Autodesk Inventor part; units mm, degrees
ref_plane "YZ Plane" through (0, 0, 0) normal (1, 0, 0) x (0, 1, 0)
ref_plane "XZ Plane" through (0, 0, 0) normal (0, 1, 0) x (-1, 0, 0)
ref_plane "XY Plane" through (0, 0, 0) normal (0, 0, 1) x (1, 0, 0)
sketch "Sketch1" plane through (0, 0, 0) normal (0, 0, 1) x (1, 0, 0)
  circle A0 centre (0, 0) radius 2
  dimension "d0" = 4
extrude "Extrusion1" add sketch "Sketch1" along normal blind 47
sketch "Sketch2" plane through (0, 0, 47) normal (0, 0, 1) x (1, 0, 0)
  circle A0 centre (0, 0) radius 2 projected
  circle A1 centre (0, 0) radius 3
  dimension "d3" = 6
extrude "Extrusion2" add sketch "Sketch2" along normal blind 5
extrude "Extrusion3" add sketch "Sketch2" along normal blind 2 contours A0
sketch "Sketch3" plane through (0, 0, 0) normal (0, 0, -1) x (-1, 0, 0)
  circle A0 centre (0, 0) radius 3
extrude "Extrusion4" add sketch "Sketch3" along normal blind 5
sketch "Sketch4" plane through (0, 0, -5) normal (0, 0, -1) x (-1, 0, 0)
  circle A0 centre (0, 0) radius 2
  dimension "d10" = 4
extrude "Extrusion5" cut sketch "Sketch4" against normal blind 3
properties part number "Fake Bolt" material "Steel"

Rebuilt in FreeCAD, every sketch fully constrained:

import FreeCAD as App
import Part
import Sketcher
from FreeCAD import Vector
Q = App.Units.Quantity

doc = App.newDocument("Part")
params = doc.addObject("Spreadsheet::Sheet", "Params")
for row, (alias, value) in enumerate([
    ("sketch1_diameter", "4 mm"),
    ("pad1_length", "47 mm"),
    ("sketch2_diameter", "6 mm"),
    ("sketch2_diameter2", "4 mm"),
    ("pad2_length", "5 mm"),
    ("sketch3_diameter", "4 mm"),
    ("pad3_length", "2 mm"),
    ("sketch4_diameter", "6 mm"),
    ("pad4_length", "5 mm"),
    ("sketch5_diameter", "4 mm"),
    ("pocket1_length", "3 mm"),
], start=1):
    params.set(f"A{row}", alias)
    params.set(f"B{row}", "=" + value)
    params.setAlias(f"B{row}", alias)

body = doc.addObject("PartDesign::Body", "Body")
body.AllowCompound = True

sketch1 = doc.addObject("Sketcher::SketchObject", "Sketch")
body.addObject(sketch1)
sketch1.AttachmentSupport = (doc.XY_Plane, [""])
sketch1.MapMode = "FlatFace"
sketch1.addGeometry(Part.Circle(Vector(0, 0, 0), Vector(0, 0, 1), 2), False)
sketch1.addConstraint([
    Sketcher.Constraint("Coincident", 0, 3, -1, 1),
    Sketcher.Constraint("Diameter", 0, Q("4 mm")),
])
sketch1.setExpression("Constraints[1]", "Params.sketch1_diameter")
pad1 = doc.addObject("PartDesign::Pad", "Pad")
body.addObject(pad1)
pad1.Profile = sketch1
pad1.setExpression("Length", "Params.pad1_length")

sketch2 = doc.addObject("Sketcher::SketchObject", "Sketch001")
body.addObject(sketch2)
sketch2.AttachmentSupport = (doc.XY_Plane, [""])
sketch2.MapMode = "FlatFace"
sketch2.AttachmentOffset = App.Placement(Vector(0, 0, 47), App.Rotation())
sketch2.addGeometry([
    Part.Circle(Vector(0, 0, 0), Vector(0, 0, 1), 3),
    Part.Circle(Vector(0, 0, 0), Vector(0, 0, 1), 2),
], False)
sketch2.addConstraint([
    Sketcher.Constraint("Coincident", 0, 3, -1, 1),
    Sketcher.Constraint("Coincident", 1, 3, -1, 1),
    Sketcher.Constraint("Diameter", 0, Q("6 mm")),
    Sketcher.Constraint("Diameter", 1, Q("4 mm")),
])
sketch2.setExpression("Constraints[2]", "Params.sketch2_diameter")
sketch2.setExpression("Constraints[3]", "Params.sketch2_diameter2")
pad2 = doc.addObject("PartDesign::Pad", "Pad001")
body.addObject(pad2)
pad2.Profile = sketch2
pad2.setExpression("Length", "Params.pad2_length")

sketch3 = doc.addObject("Sketcher::SketchObject", "Sketch002")
body.addObject(sketch3)
sketch3.AttachmentSupport = (doc.XY_Plane, [""])
sketch3.MapMode = "FlatFace"
sketch3.AttachmentOffset = App.Placement(Vector(0, 0, 47), App.Rotation())
sketch3.addGeometry(Part.Circle(Vector(0, 0, 0), Vector(0, 0, 1), 2), False)
sketch3.addConstraint([
    Sketcher.Constraint("Coincident", 0, 3, -1, 1),
    Sketcher.Constraint("Diameter", 0, Q("4 mm")),
])
sketch3.setExpression("Constraints[1]", "Params.sketch3_diameter")
pad3 = doc.addObject("PartDesign::Pad", "Pad002")
body.addObject(pad3)
pad3.Profile = sketch3
pad3.setExpression("Length", "Params.pad3_length")

sketch4 = doc.addObject("Sketcher::SketchObject", "Sketch003")
body.addObject(sketch4)
sketch4.AttachmentSupport = (doc.XY_Plane, [""])
sketch4.MapMode = "FlatFace"
sketch4.addGeometry(Part.Circle(Vector(0, 0, 0), Vector(0, 0, 1), 3), False)
sketch4.addConstraint([
    Sketcher.Constraint("Coincident", 0, 3, -1, 1),
    Sketcher.Constraint("Diameter", 0, Q("6 mm")),
])
sketch4.setExpression("Constraints[1]", "Params.sketch4_diameter")
pad4 = doc.addObject("PartDesign::Pad", "Pad003")
body.addObject(pad4)
pad4.Profile = sketch4
pad4.setExpression("Length", "Params.pad4_length")
pad4.Reversed = True

sketch5 = doc.addObject("Sketcher::SketchObject", "Sketch004")
body.addObject(sketch5)
sketch5.AttachmentSupport = (doc.XY_Plane, [""])
sketch5.MapMode = "FlatFace"
sketch5.AttachmentOffset = App.Placement(Vector(0, 0, -5), App.Rotation())
sketch5.addGeometry(Part.Circle(Vector(0, 0, 0), Vector(0, 0, 1), 2), False)
sketch5.addConstraint([
    Sketcher.Constraint("Coincident", 0, 3, -1, 1),
    Sketcher.Constraint("Diameter", 0, Q("4 mm")),
])
sketch5.setExpression("Constraints[1]", "Params.sketch5_diameter")
pocket1 = doc.addObject("PartDesign::Pocket", "Pocket")
body.addObject(pocket1)
pocket1.Profile = sketch5
pocket1.setExpression("Length", "Params.pocket1_length")
pocket1.Reversed = True

doc.recompute()
